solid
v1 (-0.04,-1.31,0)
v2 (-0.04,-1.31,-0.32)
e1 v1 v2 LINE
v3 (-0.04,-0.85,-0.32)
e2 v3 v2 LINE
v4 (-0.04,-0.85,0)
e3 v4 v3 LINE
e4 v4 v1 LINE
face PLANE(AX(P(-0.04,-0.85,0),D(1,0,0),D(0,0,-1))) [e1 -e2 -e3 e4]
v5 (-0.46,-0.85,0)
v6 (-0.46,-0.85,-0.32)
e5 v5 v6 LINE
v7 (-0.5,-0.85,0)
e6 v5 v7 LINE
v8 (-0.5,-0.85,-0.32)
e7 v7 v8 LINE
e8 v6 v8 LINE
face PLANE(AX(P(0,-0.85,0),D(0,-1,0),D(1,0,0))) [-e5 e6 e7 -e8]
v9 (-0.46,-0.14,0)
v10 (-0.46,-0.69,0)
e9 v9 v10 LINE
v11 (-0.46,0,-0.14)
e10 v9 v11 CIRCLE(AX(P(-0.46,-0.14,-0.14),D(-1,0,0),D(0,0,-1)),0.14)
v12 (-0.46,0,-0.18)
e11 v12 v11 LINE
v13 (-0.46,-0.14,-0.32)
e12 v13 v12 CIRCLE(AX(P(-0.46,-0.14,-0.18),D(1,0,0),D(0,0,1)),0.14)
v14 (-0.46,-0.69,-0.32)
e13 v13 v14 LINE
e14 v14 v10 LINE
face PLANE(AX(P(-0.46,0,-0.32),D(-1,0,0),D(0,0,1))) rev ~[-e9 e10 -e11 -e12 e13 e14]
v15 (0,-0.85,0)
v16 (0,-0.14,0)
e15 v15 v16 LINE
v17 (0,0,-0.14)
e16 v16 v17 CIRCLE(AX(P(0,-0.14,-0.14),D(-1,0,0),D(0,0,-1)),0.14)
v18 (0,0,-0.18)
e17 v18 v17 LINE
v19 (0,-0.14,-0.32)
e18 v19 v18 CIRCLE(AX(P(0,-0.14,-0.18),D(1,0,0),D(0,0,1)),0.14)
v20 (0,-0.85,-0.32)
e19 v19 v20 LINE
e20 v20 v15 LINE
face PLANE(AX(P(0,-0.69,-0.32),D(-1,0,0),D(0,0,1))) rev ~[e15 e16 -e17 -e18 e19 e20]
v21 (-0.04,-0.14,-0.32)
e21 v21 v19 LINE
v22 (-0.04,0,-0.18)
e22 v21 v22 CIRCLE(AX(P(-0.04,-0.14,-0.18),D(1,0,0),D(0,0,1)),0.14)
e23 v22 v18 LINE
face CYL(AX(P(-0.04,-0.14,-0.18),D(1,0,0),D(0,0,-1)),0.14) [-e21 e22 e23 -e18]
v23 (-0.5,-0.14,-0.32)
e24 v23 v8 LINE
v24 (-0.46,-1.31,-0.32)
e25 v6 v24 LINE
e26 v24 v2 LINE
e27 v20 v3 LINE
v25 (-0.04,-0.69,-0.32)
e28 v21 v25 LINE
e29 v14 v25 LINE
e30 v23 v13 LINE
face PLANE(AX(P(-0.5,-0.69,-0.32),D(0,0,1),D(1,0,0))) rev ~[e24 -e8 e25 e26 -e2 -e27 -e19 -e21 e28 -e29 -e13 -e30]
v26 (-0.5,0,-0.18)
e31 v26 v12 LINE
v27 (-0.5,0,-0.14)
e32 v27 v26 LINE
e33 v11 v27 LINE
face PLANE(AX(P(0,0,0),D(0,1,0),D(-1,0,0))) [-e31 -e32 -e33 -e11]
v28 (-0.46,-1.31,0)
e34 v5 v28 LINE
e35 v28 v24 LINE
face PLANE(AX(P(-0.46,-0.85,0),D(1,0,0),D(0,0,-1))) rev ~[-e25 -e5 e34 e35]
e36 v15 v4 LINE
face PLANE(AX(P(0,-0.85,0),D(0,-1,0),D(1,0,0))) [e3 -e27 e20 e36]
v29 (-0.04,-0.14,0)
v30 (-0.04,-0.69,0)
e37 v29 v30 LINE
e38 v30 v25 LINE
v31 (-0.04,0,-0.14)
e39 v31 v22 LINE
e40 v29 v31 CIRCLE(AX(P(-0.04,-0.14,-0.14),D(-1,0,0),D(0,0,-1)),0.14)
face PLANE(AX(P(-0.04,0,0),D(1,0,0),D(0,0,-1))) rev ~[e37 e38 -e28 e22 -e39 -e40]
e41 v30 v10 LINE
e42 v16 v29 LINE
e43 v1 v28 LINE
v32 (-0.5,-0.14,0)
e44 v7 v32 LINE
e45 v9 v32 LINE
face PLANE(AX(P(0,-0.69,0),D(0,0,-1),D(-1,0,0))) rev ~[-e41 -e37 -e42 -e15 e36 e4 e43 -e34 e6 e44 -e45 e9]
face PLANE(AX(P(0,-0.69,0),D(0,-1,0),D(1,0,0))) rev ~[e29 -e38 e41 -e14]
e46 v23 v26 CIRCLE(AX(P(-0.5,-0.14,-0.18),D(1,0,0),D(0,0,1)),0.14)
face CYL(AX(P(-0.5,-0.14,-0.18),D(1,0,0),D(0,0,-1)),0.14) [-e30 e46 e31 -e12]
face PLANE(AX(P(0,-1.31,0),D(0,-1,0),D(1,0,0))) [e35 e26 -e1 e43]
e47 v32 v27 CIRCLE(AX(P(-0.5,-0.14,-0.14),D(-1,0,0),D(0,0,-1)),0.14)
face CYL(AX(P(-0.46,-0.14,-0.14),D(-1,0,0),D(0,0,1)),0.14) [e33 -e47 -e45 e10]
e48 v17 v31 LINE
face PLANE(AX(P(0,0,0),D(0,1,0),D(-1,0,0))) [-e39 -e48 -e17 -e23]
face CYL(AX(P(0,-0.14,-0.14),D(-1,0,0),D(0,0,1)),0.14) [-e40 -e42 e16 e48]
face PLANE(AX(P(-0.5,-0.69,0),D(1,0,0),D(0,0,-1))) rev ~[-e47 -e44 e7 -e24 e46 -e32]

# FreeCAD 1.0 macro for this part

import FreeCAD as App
import Part
import Sketcher
from FreeCAD import Vector


def edges_at(feature, points):
    """Names of the edges that pass closest to the given points."""
    edges = feature.Shape.Edges
    near = lambda p: min(range(len(edges)), key=lambda i: edges[i].distToShape(Part.Vertex(*p))[0])
    return sorted({f"Edge{near(p) + 1}" for p in points})


def add_polygon(sketch, points):
    """Adds a closed chain of lines whose ends are joined by coincident constraints."""
    first, n = sketch.GeometryCount, len(points)
    for a, b in zip(points, points[1:] + points[:1]):
        sketch.addGeometry(Part.LineSegment(App.Vector(*a, 0), App.Vector(*b, 0)), False)
    for i in range(n):
        sketch.addConstraint(Sketcher.Constraint("Coincident", first + i, 2, first + (i + 1) % n, 1))

doc = App.newDocument("Part")
body = doc.addObject("PartDesign::Body", "Body")
body.AllowCompound = True

# Sketch on XZ plane
sketch1 = doc.addObject("Sketcher::SketchObject", "Sketch")
body.addObject(sketch1)
sketch1.AttachmentSupport = (doc.XZ_Plane, [""])
sketch1.MapMode = "FlatFace"
add_polygon(sketch1, [(-0.04, 0), (0, 0), (0, -0.32), (-0.04, -0.32)])  # lines 0-3
add_polygon(sketch1, [(-0.5, 0), (-0.46, 0), (-0.46, -0.32), (-0.5, -0.32)])  # lines 4-7
sketch1.addConstraint([
    Sketcher.Constraint("Horizontal", 0),
    Sketcher.Constraint("Vertical", 1),
    Sketcher.Constraint("Horizontal", 2),
    Sketcher.Constraint("Vertical", 3),
    Sketcher.Constraint("Horizontal", 4),
    Sketcher.Constraint("Vertical", 5),
    Sketcher.Constraint("Horizontal", 6),
    Sketcher.Constraint("Vertical", 7),
    Sketcher.Constraint("Coincident", 0, 2, -1, 1),
    Sketcher.Constraint("PointOnObject", 4, 2, -1),
    Sketcher.Constraint("Horizontal", 2, 2, 5, 2),
    Sketcher.Constraint("Equal", 2, 4),
    Sketcher.Constraint("DistanceX", 0, 1, 0, 2, 0.04),
    Sketcher.Constraint("DistanceY", 1, 2, 1, 1, 0.32),
    Sketcher.Constraint("DistanceX", 6, 2, -1, 1, 0.5),
])
pad1 = doc.addObject("PartDesign::Pad", "Pad")
body.addObject(pad1)
pad1.Profile = sketch1
pad1.Length = 0.69

# Sketch on XZ plane
sketch2 = doc.addObject("Sketcher::SketchObject", "Sketch001")
body.addObject(sketch2)
sketch2.AttachmentSupport = (doc.XZ_Plane, [""])
sketch2.MapMode = "FlatFace"
sketch2.AttachmentOffset = App.Placement(Vector(0, 0, 0.69), App.Rotation())
add_polygon(sketch2, [(-0.5, 0), (-0.5, -0.32), (0, -0.32), (0, 0)])  # lines 0-3
sketch2.addConstraint([
    Sketcher.Constraint("Vertical", 0),
    Sketcher.Constraint("Horizontal", 1),
    Sketcher.Constraint("Vertical", 2),
    Sketcher.Constraint("Horizontal", 3),
    Sketcher.Constraint("Coincident", 2, 2, -1, 1),
    Sketcher.Constraint("DistanceX", 1, 1, 1, 2, 0.5),
    Sketcher.Constraint("DistanceY", 0, 2, 0, 1, 0.32),
])
pad2 = doc.addObject("PartDesign::Pad", "Pad001")
body.addObject(pad2)
pad2.Profile = sketch2
pad2.Length = 0.16

# Sketch on XZ plane
sketch3 = doc.addObject("Sketcher::SketchObject", "Sketch002")
body.addObject(sketch3)
sketch3.AttachmentSupport = (doc.XZ_Plane, [""])
sketch3.MapMode = "FlatFace"
sketch3.AttachmentOffset = App.Placement(Vector(0, 0, 0.85), App.Rotation())
add_polygon(sketch3, [(-0.04, -0.32), (-0.04, 0), (-0.46, 0), (-0.46, -0.32)])  # lines 0-3
sketch3.addConstraint([
    Sketcher.Constraint("Vertical", 0),
    Sketcher.Constraint("Horizontal", 1),
    Sketcher.Constraint("Vertical", 2),
    Sketcher.Constraint("Horizontal", 3),
    Sketcher.Constraint("PointOnObject", 0, 2, -1),
    Sketcher.Constraint("DistanceX", 1, 2, 1, 1, 0.42),
    Sketcher.Constraint("DistanceY", 0, 1, 0, 2, 0.32),
    Sketcher.Constraint("DistanceX", 0, 2, -1, 1, 0.04),
])
pad3 = doc.addObject("PartDesign::Pad", "Pad002")
body.addObject(pad3)
pad3.Profile = sketch3
pad3.Length = 0.46
doc.recompute()

fillet = doc.addObject("PartDesign::Fillet", "Fillet")
body.addObject(fillet)
fillet.Base = (pad3, edges_at(pad3, [
    (-0.02, 0, 0),
    (-0.02, 0, -0.32),
    (-0.48, 0, 0),
    (-0.48, 0, -0.32),
]))
fillet.Radius = 0.14

doc.recompute()
